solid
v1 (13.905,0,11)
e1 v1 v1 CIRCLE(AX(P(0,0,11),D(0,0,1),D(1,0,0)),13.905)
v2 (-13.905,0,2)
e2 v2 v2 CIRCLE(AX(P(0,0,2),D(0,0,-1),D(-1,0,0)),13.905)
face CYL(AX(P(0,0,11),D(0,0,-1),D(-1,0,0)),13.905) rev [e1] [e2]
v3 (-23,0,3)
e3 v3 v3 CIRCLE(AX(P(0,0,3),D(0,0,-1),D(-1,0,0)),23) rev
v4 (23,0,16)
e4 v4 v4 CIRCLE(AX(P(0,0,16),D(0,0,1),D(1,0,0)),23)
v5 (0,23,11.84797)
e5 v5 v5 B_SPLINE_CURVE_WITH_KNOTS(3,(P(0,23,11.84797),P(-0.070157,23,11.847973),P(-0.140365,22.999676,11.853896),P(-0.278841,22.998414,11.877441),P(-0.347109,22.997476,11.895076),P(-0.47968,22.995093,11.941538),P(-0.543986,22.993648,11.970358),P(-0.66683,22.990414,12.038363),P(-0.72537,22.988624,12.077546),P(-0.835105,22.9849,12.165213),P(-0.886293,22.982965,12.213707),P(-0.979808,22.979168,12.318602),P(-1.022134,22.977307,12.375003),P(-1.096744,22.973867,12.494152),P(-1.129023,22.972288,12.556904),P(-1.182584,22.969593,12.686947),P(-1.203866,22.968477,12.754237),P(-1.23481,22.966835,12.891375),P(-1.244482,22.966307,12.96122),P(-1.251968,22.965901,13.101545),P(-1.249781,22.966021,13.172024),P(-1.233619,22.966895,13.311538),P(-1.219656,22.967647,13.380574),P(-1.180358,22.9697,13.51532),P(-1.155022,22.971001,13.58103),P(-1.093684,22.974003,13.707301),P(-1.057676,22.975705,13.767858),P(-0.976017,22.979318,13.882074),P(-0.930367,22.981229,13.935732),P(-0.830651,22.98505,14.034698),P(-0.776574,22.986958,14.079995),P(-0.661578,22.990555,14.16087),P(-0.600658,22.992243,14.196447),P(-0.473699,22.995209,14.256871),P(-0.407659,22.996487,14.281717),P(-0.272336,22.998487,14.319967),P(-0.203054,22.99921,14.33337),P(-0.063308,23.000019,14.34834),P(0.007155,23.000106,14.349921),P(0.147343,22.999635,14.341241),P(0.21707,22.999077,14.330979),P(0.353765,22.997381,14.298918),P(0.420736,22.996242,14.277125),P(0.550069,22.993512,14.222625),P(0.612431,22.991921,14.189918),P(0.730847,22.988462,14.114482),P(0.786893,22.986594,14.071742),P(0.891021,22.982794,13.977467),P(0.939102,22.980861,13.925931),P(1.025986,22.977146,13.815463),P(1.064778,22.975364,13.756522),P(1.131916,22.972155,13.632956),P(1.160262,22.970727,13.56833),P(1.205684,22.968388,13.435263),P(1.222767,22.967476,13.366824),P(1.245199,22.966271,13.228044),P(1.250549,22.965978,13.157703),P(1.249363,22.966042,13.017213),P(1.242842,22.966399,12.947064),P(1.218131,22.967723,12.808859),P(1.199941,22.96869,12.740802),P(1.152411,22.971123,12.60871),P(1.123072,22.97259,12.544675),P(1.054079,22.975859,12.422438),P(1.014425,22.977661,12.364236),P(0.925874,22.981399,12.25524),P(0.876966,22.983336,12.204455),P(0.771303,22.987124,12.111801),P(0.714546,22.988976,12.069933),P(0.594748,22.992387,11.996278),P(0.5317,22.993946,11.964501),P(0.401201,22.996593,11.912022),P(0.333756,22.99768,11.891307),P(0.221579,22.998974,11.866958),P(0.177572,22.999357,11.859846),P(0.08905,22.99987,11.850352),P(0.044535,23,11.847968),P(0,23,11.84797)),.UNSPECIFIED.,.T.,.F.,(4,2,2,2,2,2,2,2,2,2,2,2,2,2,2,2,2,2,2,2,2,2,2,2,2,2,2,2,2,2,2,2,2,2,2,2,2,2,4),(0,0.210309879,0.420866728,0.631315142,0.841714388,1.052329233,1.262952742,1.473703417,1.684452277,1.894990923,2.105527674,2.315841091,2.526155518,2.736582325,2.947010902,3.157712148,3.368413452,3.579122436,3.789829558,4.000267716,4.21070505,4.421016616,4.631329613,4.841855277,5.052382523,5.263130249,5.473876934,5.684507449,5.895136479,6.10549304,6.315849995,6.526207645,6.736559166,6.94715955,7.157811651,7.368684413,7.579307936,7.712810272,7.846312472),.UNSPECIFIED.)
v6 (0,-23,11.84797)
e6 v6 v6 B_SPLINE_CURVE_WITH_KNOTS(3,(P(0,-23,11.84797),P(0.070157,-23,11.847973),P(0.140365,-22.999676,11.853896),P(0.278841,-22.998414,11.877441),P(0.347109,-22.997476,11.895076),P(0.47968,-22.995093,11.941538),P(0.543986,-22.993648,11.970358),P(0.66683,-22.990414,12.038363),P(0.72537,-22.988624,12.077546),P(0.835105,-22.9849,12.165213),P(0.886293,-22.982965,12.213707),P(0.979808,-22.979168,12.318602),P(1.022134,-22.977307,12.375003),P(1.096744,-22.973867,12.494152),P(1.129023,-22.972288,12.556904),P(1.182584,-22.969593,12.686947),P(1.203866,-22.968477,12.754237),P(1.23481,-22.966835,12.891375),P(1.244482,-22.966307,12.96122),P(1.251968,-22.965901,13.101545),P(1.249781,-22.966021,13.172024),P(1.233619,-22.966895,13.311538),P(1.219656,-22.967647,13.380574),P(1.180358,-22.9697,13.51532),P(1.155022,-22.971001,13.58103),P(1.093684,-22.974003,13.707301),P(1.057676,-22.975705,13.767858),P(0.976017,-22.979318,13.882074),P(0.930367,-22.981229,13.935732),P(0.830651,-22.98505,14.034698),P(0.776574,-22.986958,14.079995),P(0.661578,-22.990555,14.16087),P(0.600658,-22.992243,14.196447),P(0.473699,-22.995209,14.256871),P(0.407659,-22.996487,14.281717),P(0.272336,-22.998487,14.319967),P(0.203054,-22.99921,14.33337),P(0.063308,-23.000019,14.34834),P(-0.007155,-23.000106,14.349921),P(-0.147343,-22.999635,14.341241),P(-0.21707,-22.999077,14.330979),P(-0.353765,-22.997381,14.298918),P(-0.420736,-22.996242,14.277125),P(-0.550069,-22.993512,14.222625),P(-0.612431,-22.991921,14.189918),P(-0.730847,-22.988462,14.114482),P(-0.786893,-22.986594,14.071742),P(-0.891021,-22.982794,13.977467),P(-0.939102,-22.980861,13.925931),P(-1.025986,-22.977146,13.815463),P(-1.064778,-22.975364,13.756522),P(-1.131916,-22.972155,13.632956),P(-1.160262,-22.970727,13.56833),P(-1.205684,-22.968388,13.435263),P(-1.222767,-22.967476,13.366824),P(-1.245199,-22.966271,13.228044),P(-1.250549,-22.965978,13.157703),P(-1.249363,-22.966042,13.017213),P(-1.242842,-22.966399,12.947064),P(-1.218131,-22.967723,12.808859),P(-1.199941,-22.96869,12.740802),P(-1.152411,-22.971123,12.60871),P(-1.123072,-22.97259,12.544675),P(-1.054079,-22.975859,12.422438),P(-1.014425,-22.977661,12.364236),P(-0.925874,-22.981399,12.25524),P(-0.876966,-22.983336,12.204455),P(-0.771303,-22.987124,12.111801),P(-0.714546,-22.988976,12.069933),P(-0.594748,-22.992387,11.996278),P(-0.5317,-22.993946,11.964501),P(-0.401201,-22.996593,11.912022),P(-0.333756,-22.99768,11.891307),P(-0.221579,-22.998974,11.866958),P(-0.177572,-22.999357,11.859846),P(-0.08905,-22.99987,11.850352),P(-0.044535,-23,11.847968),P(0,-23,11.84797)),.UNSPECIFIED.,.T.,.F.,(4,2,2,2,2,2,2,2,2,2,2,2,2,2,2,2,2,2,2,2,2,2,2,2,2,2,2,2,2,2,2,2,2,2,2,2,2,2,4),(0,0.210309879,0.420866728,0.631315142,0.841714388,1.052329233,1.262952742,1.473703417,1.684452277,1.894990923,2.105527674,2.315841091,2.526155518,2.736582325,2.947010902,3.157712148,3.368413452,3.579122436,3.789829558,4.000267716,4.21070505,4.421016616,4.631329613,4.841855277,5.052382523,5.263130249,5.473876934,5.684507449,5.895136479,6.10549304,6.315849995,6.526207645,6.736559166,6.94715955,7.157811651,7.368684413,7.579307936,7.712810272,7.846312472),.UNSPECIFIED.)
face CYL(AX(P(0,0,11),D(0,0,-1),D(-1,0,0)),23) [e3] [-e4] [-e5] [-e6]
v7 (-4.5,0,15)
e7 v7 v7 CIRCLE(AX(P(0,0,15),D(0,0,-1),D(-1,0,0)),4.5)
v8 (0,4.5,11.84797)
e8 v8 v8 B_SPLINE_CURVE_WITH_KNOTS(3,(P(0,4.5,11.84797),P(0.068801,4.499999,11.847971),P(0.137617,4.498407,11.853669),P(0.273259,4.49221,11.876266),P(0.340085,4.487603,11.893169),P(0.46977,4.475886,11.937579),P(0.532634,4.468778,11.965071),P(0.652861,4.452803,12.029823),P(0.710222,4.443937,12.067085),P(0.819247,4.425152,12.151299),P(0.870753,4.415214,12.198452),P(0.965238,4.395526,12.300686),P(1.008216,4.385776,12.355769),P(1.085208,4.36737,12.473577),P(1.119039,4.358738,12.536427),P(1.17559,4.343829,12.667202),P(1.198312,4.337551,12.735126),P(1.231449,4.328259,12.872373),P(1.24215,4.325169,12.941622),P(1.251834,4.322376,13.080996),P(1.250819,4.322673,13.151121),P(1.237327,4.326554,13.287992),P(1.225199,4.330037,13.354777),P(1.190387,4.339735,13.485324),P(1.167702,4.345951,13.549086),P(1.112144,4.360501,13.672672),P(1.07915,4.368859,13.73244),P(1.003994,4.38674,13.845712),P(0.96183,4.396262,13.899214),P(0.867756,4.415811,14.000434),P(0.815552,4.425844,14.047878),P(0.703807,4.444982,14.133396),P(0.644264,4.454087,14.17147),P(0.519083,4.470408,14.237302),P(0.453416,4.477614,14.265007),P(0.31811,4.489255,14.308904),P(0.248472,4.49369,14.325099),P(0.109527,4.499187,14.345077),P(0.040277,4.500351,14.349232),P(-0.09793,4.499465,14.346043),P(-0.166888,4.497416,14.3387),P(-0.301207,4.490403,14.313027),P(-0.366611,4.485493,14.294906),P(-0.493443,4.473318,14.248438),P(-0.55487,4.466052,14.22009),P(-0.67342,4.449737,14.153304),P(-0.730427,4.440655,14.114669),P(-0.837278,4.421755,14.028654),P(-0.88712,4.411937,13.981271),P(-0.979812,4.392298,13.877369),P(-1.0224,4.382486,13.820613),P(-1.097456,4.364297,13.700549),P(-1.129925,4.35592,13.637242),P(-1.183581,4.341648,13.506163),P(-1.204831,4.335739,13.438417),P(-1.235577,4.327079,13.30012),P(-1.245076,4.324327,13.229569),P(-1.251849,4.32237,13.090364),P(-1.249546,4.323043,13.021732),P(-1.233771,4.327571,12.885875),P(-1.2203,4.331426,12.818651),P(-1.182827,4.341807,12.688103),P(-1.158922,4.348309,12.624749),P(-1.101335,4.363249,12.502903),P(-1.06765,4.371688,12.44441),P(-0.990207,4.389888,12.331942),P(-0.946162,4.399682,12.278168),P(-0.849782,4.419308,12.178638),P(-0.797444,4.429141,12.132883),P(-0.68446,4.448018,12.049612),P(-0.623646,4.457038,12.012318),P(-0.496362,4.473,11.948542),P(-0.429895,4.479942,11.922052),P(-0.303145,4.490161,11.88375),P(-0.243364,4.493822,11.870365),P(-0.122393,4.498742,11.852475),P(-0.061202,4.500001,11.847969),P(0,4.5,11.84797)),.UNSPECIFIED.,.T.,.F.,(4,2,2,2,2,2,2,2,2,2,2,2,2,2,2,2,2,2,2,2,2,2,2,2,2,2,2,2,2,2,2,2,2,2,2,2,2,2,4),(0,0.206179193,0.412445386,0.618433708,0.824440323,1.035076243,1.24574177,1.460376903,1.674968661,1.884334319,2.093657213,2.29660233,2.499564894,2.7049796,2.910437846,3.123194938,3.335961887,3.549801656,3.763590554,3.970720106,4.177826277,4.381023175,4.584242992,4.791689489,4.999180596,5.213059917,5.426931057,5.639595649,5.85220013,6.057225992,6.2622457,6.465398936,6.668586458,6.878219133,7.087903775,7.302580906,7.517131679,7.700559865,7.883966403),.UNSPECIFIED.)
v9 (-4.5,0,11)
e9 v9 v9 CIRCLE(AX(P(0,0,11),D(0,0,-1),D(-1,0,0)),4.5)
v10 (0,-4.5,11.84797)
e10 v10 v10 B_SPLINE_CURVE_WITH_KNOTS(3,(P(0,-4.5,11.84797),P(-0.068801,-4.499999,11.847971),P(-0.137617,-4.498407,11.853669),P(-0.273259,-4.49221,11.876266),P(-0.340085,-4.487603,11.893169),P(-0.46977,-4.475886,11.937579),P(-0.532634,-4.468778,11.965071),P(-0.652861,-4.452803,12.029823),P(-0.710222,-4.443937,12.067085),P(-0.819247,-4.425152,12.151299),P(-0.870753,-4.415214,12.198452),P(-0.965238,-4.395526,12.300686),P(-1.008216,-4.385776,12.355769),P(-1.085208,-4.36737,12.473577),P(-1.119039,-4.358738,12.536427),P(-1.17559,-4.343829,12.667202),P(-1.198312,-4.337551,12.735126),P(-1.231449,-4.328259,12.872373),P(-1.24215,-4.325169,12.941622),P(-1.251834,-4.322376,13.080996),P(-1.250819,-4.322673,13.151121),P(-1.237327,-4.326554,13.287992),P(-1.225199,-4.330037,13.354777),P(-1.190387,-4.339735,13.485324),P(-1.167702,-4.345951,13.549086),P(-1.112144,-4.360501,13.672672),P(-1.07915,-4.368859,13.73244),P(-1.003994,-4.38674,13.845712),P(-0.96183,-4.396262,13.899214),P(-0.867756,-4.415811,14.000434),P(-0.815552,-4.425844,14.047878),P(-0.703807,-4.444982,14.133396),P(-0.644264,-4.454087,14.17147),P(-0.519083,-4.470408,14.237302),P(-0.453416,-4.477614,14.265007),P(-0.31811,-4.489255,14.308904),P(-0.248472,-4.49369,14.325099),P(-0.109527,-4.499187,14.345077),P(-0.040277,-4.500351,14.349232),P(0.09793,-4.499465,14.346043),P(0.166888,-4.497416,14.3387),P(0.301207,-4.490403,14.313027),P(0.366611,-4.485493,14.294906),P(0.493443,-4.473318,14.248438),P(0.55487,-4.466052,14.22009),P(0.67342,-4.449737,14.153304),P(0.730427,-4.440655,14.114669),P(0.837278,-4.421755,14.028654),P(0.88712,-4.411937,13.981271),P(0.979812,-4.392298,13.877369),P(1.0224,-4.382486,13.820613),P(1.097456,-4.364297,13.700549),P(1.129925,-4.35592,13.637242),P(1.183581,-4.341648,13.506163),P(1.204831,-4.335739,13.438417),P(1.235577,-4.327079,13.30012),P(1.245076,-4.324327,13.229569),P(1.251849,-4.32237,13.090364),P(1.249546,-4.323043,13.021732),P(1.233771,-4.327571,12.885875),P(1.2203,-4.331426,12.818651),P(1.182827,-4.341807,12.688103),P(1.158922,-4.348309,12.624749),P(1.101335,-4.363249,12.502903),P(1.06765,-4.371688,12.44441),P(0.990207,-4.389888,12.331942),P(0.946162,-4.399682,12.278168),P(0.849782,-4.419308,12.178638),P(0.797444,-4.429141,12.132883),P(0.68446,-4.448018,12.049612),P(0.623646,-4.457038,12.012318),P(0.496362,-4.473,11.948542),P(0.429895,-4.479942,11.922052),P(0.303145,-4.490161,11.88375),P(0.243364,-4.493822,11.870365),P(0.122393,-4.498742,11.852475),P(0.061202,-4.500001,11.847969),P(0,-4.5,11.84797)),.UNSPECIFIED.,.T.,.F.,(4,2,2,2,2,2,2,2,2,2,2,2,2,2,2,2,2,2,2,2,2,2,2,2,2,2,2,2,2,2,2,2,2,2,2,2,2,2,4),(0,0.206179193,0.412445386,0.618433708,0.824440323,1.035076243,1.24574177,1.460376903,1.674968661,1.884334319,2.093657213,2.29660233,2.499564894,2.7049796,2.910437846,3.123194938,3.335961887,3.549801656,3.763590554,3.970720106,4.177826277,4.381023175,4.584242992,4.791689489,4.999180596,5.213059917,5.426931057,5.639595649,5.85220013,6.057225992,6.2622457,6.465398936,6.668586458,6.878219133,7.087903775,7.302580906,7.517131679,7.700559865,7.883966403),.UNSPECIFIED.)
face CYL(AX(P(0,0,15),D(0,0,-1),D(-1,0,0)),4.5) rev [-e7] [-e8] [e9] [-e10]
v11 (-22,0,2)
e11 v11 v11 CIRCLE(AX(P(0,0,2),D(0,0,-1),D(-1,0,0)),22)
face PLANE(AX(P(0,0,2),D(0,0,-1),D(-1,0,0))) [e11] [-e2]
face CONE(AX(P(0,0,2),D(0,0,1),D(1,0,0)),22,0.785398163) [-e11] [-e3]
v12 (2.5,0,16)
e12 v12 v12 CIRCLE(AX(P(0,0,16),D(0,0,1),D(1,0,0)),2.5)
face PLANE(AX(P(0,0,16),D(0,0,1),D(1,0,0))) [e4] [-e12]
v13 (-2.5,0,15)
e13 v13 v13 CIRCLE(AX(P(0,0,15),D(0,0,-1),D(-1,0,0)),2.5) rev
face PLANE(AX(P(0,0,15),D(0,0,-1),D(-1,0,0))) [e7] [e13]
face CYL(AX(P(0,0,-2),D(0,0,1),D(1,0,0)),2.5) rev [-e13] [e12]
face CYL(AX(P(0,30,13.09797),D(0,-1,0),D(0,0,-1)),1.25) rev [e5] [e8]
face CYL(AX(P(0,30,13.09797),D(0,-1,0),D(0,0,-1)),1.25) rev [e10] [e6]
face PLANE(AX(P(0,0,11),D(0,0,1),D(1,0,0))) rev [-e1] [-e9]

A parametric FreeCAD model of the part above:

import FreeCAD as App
import Part
import Sketcher
Q = App.Units.Quantity


def edges_at(feature, points):
    """Names of the edges that pass closest to the given points."""
    edges = feature.Shape.Edges
    near = lambda p: min(range(len(edges)), key=lambda i: edges[i].distToShape(Part.Vertex(*p))[0])
    return sorted({f"Edge{near(p) + 1}" for p in points})

doc = App.newDocument("Part")
body = doc.addObject("PartDesign::Body", "Body")

# Sketch on XY plane
sketch1 = body.newObject("Sketcher::SketchObject", "Sketch")
sketch1.AttachmentSupport = (doc.getObject("XY_Plane"), [""])
sketch1.MapMode = "FlatFace"
sketch1.addGeometry(Part.Circle(App.Vector(0, 0, 0), App.Vector(0, 0, 1), 23), False)
sketch1.addGeometry(Part.Circle(App.Vector(0, 0, 0), App.Vector(0, 0, 1), 14), False)
sketch1.addConstraint(Sketcher.Constraint("Coincident", 0, 3, -1, 1))
sketch1.addConstraint(Sketcher.Constraint("Coincident", 1, 3, -1, 1))
sketch1.addConstraint(Sketcher.Constraint("Diameter", 0, Q("46 mm")))
sketch1.addConstraint(Sketcher.Constraint("Diameter", 1, Q("27.81 mm")))
pad1 = body.newObject("PartDesign::Pad", "Pad")
pad1.Profile = sketch1
pad1.Length = 11

# Sketch on XY plane
sketch2 = body.newObject("Sketcher::SketchObject", "Sketch001")
sketch2.AttachmentSupport = (doc.getObject("XY_Plane"), [""])
sketch2.MapMode = "FlatFace"
sketch2.AttachmentOffset = App.Placement(App.Vector(0, 0, 11), App.Rotation())
sketch2.addGeometry(Part.Circle(App.Vector(0, 0, 0), App.Vector(0, 0, 1), 23), False)
sketch2.addConstraint(Sketcher.Constraint("Coincident", 0, 3, -1, 1))
sketch2.addConstraint(Sketcher.Constraint("Diameter", 0, Q("46 mm")))
pad2 = body.newObject("PartDesign::Pad", "Pad001")
pad2.Profile = sketch2
pad2.Length = 5

# Sketch on XY plane
sketch3 = body.newObject("Sketcher::SketchObject", "Sketch002")
sketch3.AttachmentSupport = (doc.getObject("XY_Plane"), [""])
sketch3.MapMode = "FlatFace"
sketch3.AttachmentOffset = App.Placement(App.Vector(0, 0, 16), App.Rotation())
sketch3.addGeometry(Part.Circle(App.Vector(0, 0, 0), App.Vector(0, 0, 1), 2.5), False)
sketch3.addConstraint(Sketcher.Constraint("Coincident", 0, 3, -1, 1))
sketch3.addConstraint(Sketcher.Constraint("Diameter", 0, Q("5 mm")))
pocket1 = body.newObject("PartDesign::Pocket", "Pocket")
pocket1.Profile = sketch3
pocket1.Length = 18

# Sketch on XY plane
sketch4 = body.newObject("Sketcher::SketchObject", "Sketch003")
sketch4.AttachmentSupport = (doc.getObject("XY_Plane"), [""])
sketch4.MapMode = "FlatFace"
sketch4.AttachmentOffset = App.Placement(App.Vector(0, 0, 11), App.Rotation())
sketch4.addGeometry(Part.Circle(App.Vector(0, 0, 0), App.Vector(0, 0, 1), 4.5), False)
sketch4.addConstraint(Sketcher.Constraint("Coincident", 0, 3, -1, 1))
sketch4.addConstraint(Sketcher.Constraint("Diameter", 0, Q("9 mm")))
pocket2 = body.newObject("PartDesign::Pocket", "Pocket001")
pocket2.Profile = sketch4
pocket2.Length = 4
pocket2.Reversed = True

# Sketch on XY plane
sketch5 = body.newObject("Sketcher::SketchObject", "Sketch004")
sketch5.AttachmentSupport = (doc.getObject("XY_Plane"), [""])
sketch5.MapMode = "FlatFace"
sketch5.addGeometry(Part.Circle(App.Vector(0, 0, 0), App.Vector(0, 0, 1), 24), False)
sketch5.addConstraint(Sketcher.Constraint("Coincident", 0, 3, -1, 1))
sketch5.addConstraint(Sketcher.Constraint("Diameter", 0, Q("48.686098 mm")))
pocket3 = body.newObject("PartDesign::Pocket", "Pocket002")
pocket3.Profile = sketch5
pocket3.Length = 2
pocket3.Reversed = True
doc.recompute()

chamfer = body.newObject("PartDesign::Chamfer", "Chamfer")
chamfer.Base = (pocket3, edges_at(pocket3, [(-23, 0, 2)]))
chamfer.Size = 1

# Sketch on XZ plane
sketch6 = body.newObject("Sketcher::SketchObject", "Sketch005")
sketch6.AttachmentSupport = (doc.getObject("XZ_Plane"), [""])
sketch6.MapMode = "FlatFace"
sketch6.addGeometry(Part.Circle(App.Vector(0, 13.1, 0), App.Vector(0, 0, 1), 1.2), False)
sketch6.addConstraint(Sketcher.Constraint("PointOnObject", 0, 3, -2))
sketch6.addConstraint(Sketcher.Constraint("Diameter", 0, Q("2.5 mm")))
sketch6.addConstraint(Sketcher.Constraint("DistanceY", -1, 1, 0, 3, Q("13.09797 mm")))
pocket4 = body.newObject("PartDesign::Pocket", "Pocket003")
pocket4.Profile = sketch6
pocket4.Type = "ThroughAll"
pocket4.Midplane = True

doc.recompute()
